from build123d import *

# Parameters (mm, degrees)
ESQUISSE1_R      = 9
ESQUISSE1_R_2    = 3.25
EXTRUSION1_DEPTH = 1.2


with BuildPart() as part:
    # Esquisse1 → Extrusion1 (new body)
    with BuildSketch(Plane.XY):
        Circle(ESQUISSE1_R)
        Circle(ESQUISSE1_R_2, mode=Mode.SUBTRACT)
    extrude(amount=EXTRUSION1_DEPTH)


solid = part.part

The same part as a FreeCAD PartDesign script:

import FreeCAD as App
import Part
import Sketcher

doc = App.newDocument("Part")
params = doc.addObject("Spreadsheet::Sheet", "Params")
for row, (alias, value) in enumerate([
    ("sketch1_diameter", "18 mm"),
    ("sketch1_diameter2", "6.5 mm"),
    ("pad1_length", "1.2 mm"),
], start=1):
    params.set(f"A{row}", alias)
    params.set(f"B{row}", "=" + value)
    params.setAlias(f"B{row}", alias)

body = doc.addObject("PartDesign::Body", "Body")

# Sketch on XY plane
sketch1 = doc.addObject("Sketcher::SketchObject", "Sketch")
body.addObject(sketch1)
sketch1.AttachmentSupport = (doc.XY_Plane, [""])
sketch1.MapMode = "FlatFace"
sketch1.addGeometry(Part.Circle(App.Vector(0, 0, 0), App.Vector(0, 0, 1), 9), False)
sketch1.addGeometry(Part.Circle(App.Vector(0, 0, 0), App.Vector(0, 0, 1), 3.2), False)
sketch1.addConstraint(Sketcher.Constraint("Coincident", 0, 3, -1, 1))
sketch1.addConstraint(Sketcher.Constraint("Coincident", 1, 3, -1, 1))
sketch1.addConstraint(Sketcher.Constraint("Diameter", 0, 18.0))
sketch1.addConstraint(Sketcher.Constraint("Diameter", 1, 6.5))
sketch1.setExpression("Constraints[2]", "Params.sketch1_diameter")
sketch1.setExpression("Constraints[3]", "Params.sketch1_diameter2")
pad1 = doc.addObject("PartDesign::Pad", "Pad")
body.addObject(pad1)
pad1.Profile = sketch1
pad1.setExpression("Length", "Params.pad1_length")

doc.recompute()
